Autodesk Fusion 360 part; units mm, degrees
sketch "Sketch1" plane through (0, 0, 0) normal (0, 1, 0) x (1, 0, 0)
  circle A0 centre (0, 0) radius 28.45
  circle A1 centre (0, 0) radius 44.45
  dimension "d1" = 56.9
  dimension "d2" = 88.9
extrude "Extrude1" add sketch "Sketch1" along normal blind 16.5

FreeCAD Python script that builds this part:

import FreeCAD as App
import Part
import Sketcher

doc = App.newDocument("Part")
body = doc.addObject("PartDesign::Body", "Body")

sketch1 = doc.addObject("Sketcher::SketchObject", "Sketch")
body.addObject(sketch1)
sketch1.AttachmentSupport = (doc.XZ_Plane, [""])
sketch1.MapMode = "FlatFace"
sketch1.addGeometry(Part.Circle(App.Vector(0, 0, 0), App.Vector(0, 0, 1), 44), False)
sketch1.addGeometry(Part.Circle(App.Vector(0, 0, 0), App.Vector(0, 0, 1), 28), False)
sketch1.addConstraint(Sketcher.Constraint("Coincident", 0, 3, -1, 1))
sketch1.addConstraint(Sketcher.Constraint("Coincident", 1, 3, -1, 1))
sketch1.addConstraint(Sketcher.Constraint("Diameter", 0, 88.9))
sketch1.addConstraint(Sketcher.Constraint("Diameter", 1, 56.9))
pad1 = doc.addObject("PartDesign::Pad", "Pad")
body.addObject(pad1)
pad1.Profile = sketch1
pad1.Length = 16.5
pad1.Reversed = True

doc.recompute()
